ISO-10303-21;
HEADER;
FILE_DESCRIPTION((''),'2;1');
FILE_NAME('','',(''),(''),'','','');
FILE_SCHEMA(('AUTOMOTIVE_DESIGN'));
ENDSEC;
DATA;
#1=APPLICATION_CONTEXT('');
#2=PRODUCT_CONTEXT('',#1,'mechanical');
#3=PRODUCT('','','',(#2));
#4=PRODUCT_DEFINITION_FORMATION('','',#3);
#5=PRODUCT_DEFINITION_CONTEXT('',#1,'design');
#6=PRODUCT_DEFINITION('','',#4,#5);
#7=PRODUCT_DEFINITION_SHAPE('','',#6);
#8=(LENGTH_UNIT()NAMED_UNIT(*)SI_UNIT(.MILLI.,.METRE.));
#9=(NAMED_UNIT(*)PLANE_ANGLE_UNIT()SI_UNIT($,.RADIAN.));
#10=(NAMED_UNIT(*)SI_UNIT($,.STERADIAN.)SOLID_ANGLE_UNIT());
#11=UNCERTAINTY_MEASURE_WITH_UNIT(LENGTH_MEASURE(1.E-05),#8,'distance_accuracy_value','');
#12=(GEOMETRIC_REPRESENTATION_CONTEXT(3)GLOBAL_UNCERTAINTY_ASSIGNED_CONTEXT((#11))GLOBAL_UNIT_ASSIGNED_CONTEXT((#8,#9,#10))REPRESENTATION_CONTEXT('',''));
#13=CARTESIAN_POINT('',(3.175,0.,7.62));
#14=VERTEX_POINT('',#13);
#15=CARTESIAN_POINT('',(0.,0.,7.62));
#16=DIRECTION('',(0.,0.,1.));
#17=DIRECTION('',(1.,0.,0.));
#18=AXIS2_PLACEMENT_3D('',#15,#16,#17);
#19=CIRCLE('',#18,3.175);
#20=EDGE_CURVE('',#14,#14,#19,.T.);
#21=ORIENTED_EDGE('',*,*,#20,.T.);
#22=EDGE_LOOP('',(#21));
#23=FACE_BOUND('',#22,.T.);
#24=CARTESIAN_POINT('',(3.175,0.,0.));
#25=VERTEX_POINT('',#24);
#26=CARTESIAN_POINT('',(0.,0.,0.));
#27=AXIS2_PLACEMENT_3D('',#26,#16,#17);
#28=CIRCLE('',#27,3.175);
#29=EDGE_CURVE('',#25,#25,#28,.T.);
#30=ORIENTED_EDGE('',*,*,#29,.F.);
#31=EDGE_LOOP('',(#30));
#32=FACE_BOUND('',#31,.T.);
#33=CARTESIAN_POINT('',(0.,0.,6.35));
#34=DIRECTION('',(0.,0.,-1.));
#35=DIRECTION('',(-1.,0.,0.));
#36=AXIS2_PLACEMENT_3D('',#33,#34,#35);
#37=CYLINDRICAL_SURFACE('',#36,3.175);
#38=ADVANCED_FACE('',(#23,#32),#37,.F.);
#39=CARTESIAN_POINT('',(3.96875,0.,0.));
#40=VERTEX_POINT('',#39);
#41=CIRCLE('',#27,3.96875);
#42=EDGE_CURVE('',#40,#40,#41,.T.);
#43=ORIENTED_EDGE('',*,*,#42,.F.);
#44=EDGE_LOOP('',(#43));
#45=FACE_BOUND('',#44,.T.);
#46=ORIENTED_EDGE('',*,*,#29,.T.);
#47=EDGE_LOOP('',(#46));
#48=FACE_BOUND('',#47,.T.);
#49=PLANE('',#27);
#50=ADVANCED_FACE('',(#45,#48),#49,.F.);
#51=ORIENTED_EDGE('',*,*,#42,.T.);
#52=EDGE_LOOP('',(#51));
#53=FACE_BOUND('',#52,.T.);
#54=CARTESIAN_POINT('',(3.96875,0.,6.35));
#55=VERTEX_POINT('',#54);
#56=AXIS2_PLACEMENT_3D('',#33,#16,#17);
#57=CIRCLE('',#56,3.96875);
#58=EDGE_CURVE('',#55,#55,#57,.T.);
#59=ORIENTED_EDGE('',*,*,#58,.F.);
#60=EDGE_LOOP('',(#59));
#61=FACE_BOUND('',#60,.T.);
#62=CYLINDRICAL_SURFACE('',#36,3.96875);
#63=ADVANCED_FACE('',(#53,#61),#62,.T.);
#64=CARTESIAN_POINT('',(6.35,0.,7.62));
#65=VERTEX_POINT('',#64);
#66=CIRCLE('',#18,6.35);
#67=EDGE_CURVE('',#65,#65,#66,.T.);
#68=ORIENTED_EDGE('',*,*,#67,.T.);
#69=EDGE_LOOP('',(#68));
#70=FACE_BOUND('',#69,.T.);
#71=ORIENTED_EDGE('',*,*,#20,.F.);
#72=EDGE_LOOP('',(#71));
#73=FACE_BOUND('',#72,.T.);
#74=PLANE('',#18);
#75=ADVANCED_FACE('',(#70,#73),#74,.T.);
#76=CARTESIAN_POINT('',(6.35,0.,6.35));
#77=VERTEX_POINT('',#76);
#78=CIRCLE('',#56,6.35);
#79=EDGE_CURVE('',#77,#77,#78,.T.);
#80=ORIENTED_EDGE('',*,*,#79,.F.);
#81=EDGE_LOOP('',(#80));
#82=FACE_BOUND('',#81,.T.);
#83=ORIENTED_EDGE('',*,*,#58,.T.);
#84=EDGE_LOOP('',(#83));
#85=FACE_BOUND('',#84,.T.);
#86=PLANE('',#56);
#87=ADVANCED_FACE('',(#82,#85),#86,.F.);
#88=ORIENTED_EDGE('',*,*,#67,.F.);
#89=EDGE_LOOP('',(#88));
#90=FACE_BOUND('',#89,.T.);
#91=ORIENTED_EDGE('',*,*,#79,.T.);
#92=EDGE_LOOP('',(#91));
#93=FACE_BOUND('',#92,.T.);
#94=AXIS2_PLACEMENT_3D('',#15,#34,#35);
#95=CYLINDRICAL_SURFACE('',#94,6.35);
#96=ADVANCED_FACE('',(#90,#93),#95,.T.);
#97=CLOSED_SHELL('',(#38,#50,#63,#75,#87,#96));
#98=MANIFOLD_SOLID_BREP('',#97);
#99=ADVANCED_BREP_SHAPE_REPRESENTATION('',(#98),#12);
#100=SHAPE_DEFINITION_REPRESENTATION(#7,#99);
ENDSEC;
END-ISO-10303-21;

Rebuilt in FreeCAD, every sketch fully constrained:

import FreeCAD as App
import Part
import Sketcher
Q = App.Units.Quantity

doc = App.newDocument("Part")
body = doc.addObject("PartDesign::Body", "Body")

# Sketch on XY plane
sketch1 = body.newObject("Sketcher::SketchObject", "Sketch")
sketch1.AttachmentSupport = (doc.getObject("XY_Plane"), [""])
sketch1.MapMode = "FlatFace"
sketch1.addGeometry(Part.Circle(App.Vector(0, 0, 0), App.Vector(0, 0, 1), 3.96875), False)
sketch1.addGeometry(Part.Circle(App.Vector(0, 0, 0), App.Vector(0, 0, 1), 3.175), False)
sketch1.addConstraint(Sketcher.Constraint("Coincident", 0, 3, -1, 1))
sketch1.addConstraint(Sketcher.Constraint("Coincident", 1, 3, -1, 1))
sketch1.addConstraint(Sketcher.Constraint("Diameter", 1, Q("0.25 in")))
sketch1.addConstraint(Sketcher.Constraint("Diameter", 0, Q("0.3125 in")))
pad1 = body.newObject("PartDesign::Pad", "Pad")
pad1.Profile = sketch1
pad1.Length = Q("0.25 in")

# Sketch on XY plane
sketch2 = body.newObject("Sketcher::SketchObject", "Sketch001")
sketch2.AttachmentSupport = (doc.getObject("XY_Plane"), [""])
sketch2.MapMode = "FlatFace"
sketch2.AttachmentOffset = App.Placement(App.Vector(0, 0, 0.25 * 25.4), App.Rotation())
sketch2.addGeometry(Part.Circle(App.Vector(0, 0, 0), App.Vector(0, 0, 1), 6.35), False)
sketch2.addGeometry(Part.Circle(App.Vector(0, 0, 0), App.Vector(0, 0, 1), 3.175), False)
sketch2.addConstraint(Sketcher.Constraint("Coincident", 0, 3, -1, 1))
sketch2.addConstraint(Sketcher.Constraint("Coincident", 1, 3, -1, 1))
sketch2.addConstraint(Sketcher.Constraint("Diameter", 0, Q("0.5 in")))
sketch2.addConstraint(Sketcher.Constraint("Diameter", 1, Q("0.25 in")))
pad2 = body.newObject("PartDesign::Pad", "Pad001")
pad2.Profile = sketch2
pad2.Length = Q("0.05 in")

doc.recompute()
